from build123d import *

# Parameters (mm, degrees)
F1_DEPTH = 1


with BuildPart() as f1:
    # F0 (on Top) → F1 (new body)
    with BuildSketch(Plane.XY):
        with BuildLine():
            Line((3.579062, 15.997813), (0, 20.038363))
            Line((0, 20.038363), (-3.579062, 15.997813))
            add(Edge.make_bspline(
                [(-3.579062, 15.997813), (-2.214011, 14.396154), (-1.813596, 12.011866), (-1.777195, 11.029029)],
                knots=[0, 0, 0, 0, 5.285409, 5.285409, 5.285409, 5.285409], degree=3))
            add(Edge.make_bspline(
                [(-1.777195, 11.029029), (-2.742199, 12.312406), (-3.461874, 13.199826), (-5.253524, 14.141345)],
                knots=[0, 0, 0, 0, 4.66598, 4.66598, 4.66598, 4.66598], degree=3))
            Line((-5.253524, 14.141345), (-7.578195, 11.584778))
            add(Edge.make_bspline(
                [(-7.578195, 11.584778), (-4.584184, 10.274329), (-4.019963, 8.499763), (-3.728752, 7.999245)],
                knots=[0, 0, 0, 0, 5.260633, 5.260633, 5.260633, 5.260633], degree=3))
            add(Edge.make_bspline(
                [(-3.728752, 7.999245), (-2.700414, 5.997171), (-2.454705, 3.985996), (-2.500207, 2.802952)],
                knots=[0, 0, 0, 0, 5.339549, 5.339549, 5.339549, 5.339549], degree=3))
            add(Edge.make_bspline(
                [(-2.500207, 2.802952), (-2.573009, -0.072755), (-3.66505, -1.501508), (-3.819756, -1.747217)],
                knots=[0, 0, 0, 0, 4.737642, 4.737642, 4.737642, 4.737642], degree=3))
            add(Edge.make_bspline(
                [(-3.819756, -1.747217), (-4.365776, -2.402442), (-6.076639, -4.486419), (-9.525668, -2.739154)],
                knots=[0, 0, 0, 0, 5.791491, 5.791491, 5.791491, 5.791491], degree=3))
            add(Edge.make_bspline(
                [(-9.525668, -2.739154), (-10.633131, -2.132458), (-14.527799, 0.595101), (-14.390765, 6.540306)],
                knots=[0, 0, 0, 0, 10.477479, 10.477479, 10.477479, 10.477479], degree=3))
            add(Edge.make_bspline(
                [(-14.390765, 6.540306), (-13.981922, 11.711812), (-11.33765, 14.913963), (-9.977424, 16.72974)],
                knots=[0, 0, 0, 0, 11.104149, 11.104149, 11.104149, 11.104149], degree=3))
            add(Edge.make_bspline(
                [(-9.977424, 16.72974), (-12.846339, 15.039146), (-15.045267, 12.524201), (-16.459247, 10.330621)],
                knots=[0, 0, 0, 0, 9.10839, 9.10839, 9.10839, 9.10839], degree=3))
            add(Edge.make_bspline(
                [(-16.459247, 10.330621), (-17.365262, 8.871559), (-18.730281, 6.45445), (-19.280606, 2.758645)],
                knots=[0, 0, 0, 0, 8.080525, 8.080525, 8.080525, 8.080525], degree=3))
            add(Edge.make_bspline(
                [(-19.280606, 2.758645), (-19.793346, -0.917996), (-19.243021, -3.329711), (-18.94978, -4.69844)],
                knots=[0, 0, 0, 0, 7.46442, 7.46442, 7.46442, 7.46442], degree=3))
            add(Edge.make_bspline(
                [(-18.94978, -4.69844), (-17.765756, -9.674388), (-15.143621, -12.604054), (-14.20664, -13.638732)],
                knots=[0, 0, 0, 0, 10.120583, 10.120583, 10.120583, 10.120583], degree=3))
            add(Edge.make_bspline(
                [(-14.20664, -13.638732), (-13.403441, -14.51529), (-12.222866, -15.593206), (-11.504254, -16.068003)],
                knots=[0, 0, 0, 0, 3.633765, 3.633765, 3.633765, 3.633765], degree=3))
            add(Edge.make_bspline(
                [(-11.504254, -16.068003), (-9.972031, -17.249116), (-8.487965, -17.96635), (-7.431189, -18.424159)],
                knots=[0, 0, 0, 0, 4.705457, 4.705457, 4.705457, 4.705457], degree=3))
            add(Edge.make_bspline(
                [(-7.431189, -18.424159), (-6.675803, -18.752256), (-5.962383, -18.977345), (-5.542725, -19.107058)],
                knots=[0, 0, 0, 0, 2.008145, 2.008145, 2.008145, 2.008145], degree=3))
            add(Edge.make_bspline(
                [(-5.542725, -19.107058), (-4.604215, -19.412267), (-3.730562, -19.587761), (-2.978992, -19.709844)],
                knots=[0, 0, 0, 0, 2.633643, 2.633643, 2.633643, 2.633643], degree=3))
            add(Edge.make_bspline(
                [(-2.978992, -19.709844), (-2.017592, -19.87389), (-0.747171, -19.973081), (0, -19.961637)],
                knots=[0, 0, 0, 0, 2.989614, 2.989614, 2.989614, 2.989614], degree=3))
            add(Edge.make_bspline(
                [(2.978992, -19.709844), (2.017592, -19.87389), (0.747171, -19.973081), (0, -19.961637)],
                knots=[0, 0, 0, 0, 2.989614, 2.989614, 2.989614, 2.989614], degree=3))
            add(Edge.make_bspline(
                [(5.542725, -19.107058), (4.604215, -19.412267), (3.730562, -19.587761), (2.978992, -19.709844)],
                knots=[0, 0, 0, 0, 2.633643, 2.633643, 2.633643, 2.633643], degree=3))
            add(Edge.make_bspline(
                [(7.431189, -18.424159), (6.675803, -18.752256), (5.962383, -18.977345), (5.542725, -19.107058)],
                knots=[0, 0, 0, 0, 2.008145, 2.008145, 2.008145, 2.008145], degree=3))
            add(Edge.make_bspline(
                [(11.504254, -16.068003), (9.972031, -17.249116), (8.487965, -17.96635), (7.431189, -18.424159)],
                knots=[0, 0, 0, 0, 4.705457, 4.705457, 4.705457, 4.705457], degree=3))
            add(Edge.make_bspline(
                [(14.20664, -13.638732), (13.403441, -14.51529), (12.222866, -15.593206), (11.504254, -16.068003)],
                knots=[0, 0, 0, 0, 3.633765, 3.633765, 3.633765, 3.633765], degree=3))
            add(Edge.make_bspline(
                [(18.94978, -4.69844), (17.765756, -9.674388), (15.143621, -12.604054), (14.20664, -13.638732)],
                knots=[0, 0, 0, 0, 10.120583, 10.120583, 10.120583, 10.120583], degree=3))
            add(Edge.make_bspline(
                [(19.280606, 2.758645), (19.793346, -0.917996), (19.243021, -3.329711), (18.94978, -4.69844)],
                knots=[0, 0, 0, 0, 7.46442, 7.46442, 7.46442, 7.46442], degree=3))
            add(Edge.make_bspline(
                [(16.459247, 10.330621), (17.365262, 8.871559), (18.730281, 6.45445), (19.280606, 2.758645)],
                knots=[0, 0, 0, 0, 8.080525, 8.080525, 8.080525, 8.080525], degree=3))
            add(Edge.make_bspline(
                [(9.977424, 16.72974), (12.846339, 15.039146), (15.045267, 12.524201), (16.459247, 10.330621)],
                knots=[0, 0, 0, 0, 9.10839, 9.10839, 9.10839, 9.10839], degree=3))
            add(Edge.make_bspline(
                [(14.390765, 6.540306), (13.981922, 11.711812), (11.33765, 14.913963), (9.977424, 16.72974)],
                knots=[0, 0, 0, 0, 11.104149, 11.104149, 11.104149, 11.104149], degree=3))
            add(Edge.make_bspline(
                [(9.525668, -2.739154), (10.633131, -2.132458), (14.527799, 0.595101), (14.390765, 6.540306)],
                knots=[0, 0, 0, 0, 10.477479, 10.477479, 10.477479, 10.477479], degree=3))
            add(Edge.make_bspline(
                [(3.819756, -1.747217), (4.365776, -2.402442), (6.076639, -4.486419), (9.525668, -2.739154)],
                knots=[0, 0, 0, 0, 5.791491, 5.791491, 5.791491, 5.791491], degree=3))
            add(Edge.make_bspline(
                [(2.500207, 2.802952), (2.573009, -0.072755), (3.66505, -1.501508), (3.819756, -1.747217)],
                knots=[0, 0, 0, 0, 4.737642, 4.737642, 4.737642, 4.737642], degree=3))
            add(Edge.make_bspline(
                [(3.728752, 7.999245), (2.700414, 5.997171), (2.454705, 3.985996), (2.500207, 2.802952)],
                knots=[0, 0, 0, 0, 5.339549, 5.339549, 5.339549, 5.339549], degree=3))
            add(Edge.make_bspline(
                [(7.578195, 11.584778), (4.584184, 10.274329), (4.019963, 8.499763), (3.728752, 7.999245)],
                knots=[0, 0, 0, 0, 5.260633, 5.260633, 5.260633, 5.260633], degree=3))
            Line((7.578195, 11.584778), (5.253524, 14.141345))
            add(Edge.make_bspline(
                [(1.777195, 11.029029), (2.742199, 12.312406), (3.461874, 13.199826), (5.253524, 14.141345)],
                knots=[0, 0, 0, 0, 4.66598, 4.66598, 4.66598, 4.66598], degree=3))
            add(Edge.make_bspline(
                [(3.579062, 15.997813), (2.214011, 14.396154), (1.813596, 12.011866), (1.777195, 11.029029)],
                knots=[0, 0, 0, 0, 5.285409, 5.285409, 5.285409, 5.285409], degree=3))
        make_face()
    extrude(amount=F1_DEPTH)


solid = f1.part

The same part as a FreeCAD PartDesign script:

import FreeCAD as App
import Part
import Sketcher
from FreeCAD import Vector

doc = App.newDocument("Part")
params = doc.addObject("Spreadsheet::Sheet", "Params")
for row, (alias, value) in enumerate([
    ("pad1_length", "1 mm"),
], start=1):
    params.set(f"A{row}", alias)
    params.set(f"B{row}", "=" + value)
    params.setAlias(f"B{row}", alias)

body = doc.addObject("PartDesign::Body", "Body")

# Sketch on XY plane
sketch1 = doc.addObject("Sketcher::SketchObject", "Sketch")
body.addObject(sketch1)
sketch1.AttachmentSupport = (doc.XY_Plane, [""])
sketch1.MapMode = "FlatFace"
sketch1.addGeometry(Part.LineSegment(Vector(3.579062, 15.997813, 0), Vector(0, 20.038363, 0)), False)
sketch1.addGeometry(Part.LineSegment(Vector(0, 20.038363, 0), Vector(-3.579062, 15.997813, 0)), False)
sketch1.addGeometry(Part.BSplineCurve([Vector(-3.579062, 15.997813, 0), Vector(-2.214011, 14.396154, 0), Vector(-1.813596, 12.011866, 0), Vector(-1.777195, 11.029029, 0)], [4, 4], [0, 5.285409], False, 3, [1, 1, 1, 1], False), False)
sketch1.addGeometry(Part.BSplineCurve([Vector(-1.777195, 11.029029, 0), Vector(-2.742199, 12.312406, 0), Vector(-3.461874, 13.199826, 0), Vector(-5.253524, 14.141345, 0)], [4, 4], [0, 4.66598], False, 3, [1, 1, 1, 1], False), False)
sketch1.addGeometry(Part.LineSegment(Vector(-5.253524, 14.141345, 0), Vector(-7.578195, 11.584778, 0)), False)
sketch1.addGeometry(Part.BSplineCurve([Vector(-7.578195, 11.584778, 0), Vector(-4.584184, 10.274329, 0), Vector(-4.019963, 8.499763, 0), Vector(-3.728752, 7.999245, 0)], [4, 4], [0, 5.260633], False, 3, [1, 1, 1, 1], False), False)
sketch1.addGeometry(Part.BSplineCurve([Vector(-3.728752, 7.999245, 0), Vector(-2.700414, 5.997171, 0), Vector(-2.454705, 3.985996, 0), Vector(-2.500207, 2.802952, 0)], [4, 4], [0, 5.339549], False, 3, [1, 1, 1, 1], False), False)
sketch1.addGeometry(Part.BSplineCurve([Vector(-2.500207, 2.802952, 0), Vector(-2.573009, -0.072755, 0), Vector(-3.66505, -1.501508, 0), Vector(-3.819756, -1.747217, 0)], [4, 4], [0, 4.737642], False, 3, [1, 1, 1, 1], False), False)
sketch1.addGeometry(Part.BSplineCurve([Vector(-3.819756, -1.747217, 0), Vector(-4.365776, -2.402442, 0), Vector(-6.076639, -4.486419, 0), Vector(-9.525668, -2.739154, 0)], [4, 4], [0, 5.791491], False, 3, [1, 1, 1, 1], False), False)
sketch1.addGeometry(Part.BSplineCurve([Vector(-9.525668, -2.739154, 0), Vector(-10.633131, -2.132458, 0), Vector(-14.527799, 0.595101, 0), Vector(-14.390765, 6.540306, 0)], [4, 4], [0, 10.477479], False, 3, [1, 1, 1, 1], False), False)
sketch1.addGeometry(Part.BSplineCurve([Vector(-14.390765, 6.540306, 0), Vector(-13.981922, 11.711812, 0), Vector(-11.33765, 14.913963, 0), Vector(-9.977424, 16.72974, 0)], [4, 4], [0, 11.104149], False, 3, [1, 1, 1, 1], False), False)
sketch1.addGeometry(Part.BSplineCurve([Vector(-9.977424, 16.72974, 0), Vector(-12.846339, 15.039146, 0), Vector(-15.045267, 12.524201, 0), Vector(-16.459247, 10.330621, 0)], [4, 4], [0, 9.10839], False, 3, [1, 1, 1, 1], False), False)
sketch1.addGeometry(Part.BSplineCurve([Vector(-16.459247, 10.330621, 0), Vector(-17.365262, 8.871559, 0), Vector(-18.730281, 6.45445, 0), Vector(-19.280606, 2.758645, 0)], [4, 4], [0, 8.080525], False, 3, [1, 1, 1, 1], False), False)
sketch1.addGeometry(Part.BSplineCurve([Vector(-19.280606, 2.758645, 0), Vector(-19.793346, -0.917996, 0), Vector(-19.243021, -3.329711, 0), Vector(-18.94978, -4.69844, 0)], [4, 4], [0, 7.46442], False, 3, [1, 1, 1, 1], False), False)
sketch1.addGeometry(Part.BSplineCurve([Vector(-18.94978, -4.69844, 0), Vector(-17.765756, -9.674388, 0), Vector(-15.143621, -12.604054, 0), Vector(-14.20664, -13.638732, 0)], [4, 4], [0, 10.120583], False, 3, [1, 1, 1, 1], False), False)
sketch1.addGeometry(Part.BSplineCurve([Vector(-14.20664, -13.638732, 0), Vector(-13.403441, -14.51529, 0), Vector(-12.222866, -15.593206, 0), Vector(-11.504254, -16.068003, 0)], [4, 4], [0, 3.633765], False, 3, [1, 1, 1, 1], False), False)
sketch1.addGeometry(Part.BSplineCurve([Vector(-11.504254, -16.068003, 0), Vector(-9.972031, -17.249116, 0), Vector(-8.487965, -17.96635, 0), Vector(-7.431189, -18.424159, 0)], [4, 4], [0, 4.705457], False, 3, [1, 1, 1, 1], False), False)
sketch1.addGeometry(Part.BSplineCurve([Vector(-7.431189, -18.424159, 0), Vector(-6.675803, -18.752256, 0), Vector(-5.962383, -18.977345, 0), Vector(-5.542725, -19.107058, 0)], [4, 4], [0, 2.008145], False, 3, [1, 1, 1, 1], False), False)
sketch1.addGeometry(Part.BSplineCurve([Vector(-5.542725, -19.107058, 0), Vector(-4.604215, -19.412267, 0), Vector(-3.730562, -19.587761, 0), Vector(-2.978992, -19.709844, 0)], [4, 4], [0, 2.633643], False, 3, [1, 1, 1, 1], False), False)
sketch1.addGeometry(Part.BSplineCurve([Vector(-2.978992, -19.709844, 0), Vector(-2.017592, -19.87389, 0), Vector(-0.747171, -19.973081, 0), Vector(0, -19.961637, 0)], [4, 4], [0, 2.989614], False, 3, [1, 1, 1, 1], False), False)
sketch1.addGeometry(Part.BSplineCurve([Vector(2.978992, -19.709844, 0), Vector(2.017592, -19.87389, 0), Vector(0.747171, -19.973081, 0), Vector(0, -19.961637, 0)], [4, 4], [0, 2.989614], False, 3, [1, 1, 1, 1], False), False)
sketch1.addGeometry(Part.BSplineCurve([Vector(5.542725, -19.107058, 0), Vector(4.604215, -19.412267, 0), Vector(3.730562, -19.587761, 0), Vector(2.978992, -19.709844, 0)], [4, 4], [0, 2.633643], False, 3, [1, 1, 1, 1], False), False)
sketch1.addGeometry(Part.BSplineCurve([Vector(7.431189, -18.424159, 0), Vector(6.675803, -18.752256, 0), Vector(5.962383, -18.977345, 0), Vector(5.542725, -19.107058, 0)], [4, 4], [0, 2.008145], False, 3, [1, 1, 1, 1], False), False)
sketch1.addGeometry(Part.BSplineCurve([Vector(11.504254, -16.068003, 0), Vector(9.972031, -17.249116, 0), Vector(8.487965, -17.96635, 0), Vector(7.431189, -18.424159, 0)], [4, 4], [0, 4.705457], False, 3, [1, 1, 1, 1], False), False)
sketch1.addGeometry(Part.BSplineCurve([Vector(14.20664, -13.638732, 0), Vector(13.403441, -14.51529, 0), Vector(12.222866, -15.593206, 0), Vector(11.504254, -16.068003, 0)], [4, 4], [0, 3.633765], False, 3, [1, 1, 1, 1], False), False)
sketch1.addGeometry(Part.BSplineCurve([Vector(18.94978, -4.69844, 0), Vector(17.765756, -9.674388, 0), Vector(15.143621, -12.604054, 0), Vector(14.20664, -13.638732, 0)], [4, 4], [0, 10.120583], False, 3, [1, 1, 1, 1], False), False)
sketch1.addGeometry(Part.BSplineCurve([Vector(19.280606, 2.758645, 0), Vector(19.793346, -0.917996, 0), Vector(19.243021, -3.329711, 0), Vector(18.94978, -4.69844, 0)], [4, 4], [0, 7.46442], False, 3, [1, 1, 1, 1], False), False)
sketch1.addGeometry(Part.BSplineCurve([Vector(16.459247, 10.330621, 0), Vector(17.365262, 8.871559, 0), Vector(18.730281, 6.45445, 0), Vector(19.280606, 2.758645, 0)], [4, 4], [0, 8.080525], False, 3, [1, 1, 1, 1], False), False)
sketch1.addGeometry(Part.BSplineCurve([Vector(9.977424, 16.72974, 0), Vector(12.846339, 15.039146, 0), Vector(15.045267, 12.524201, 0), Vector(16.459247, 10.330621, 0)], [4, 4], [0, 9.10839], False, 3, [1, 1, 1, 1], False), False)
sketch1.addGeometry(Part.BSplineCurve([Vector(14.390765, 6.540306, 0), Vector(13.981922, 11.711812, 0), Vector(11.33765, 14.913963, 0), Vector(9.977424, 16.72974, 0)], [4, 4], [0, 11.104149], False, 3, [1, 1, 1, 1], False), False)
sketch1.addGeometry(Part.BSplineCurve([Vector(9.525668, -2.739154, 0), Vector(10.633131, -2.132458, 0), Vector(14.527799, 0.595101, 0), Vector(14.390765, 6.540306, 0)], [4, 4], [0, 10.477479], False, 3, [1, 1, 1, 1], False), False)
sketch1.addGeometry(Part.BSplineCurve([Vector(3.819756, -1.747217, 0), Vector(4.365776, -2.402442, 0), Vector(6.076639, -4.486419, 0), Vector(9.525668, -2.739154, 0)], [4, 4], [0, 5.791491], False, 3, [1, 1, 1, 1], False), False)
sketch1.addGeometry(Part.BSplineCurve([Vector(2.500207, 2.802952, 0), Vector(2.573009, -0.072755, 0), Vector(3.66505, -1.501508, 0), Vector(3.819756, -1.747217, 0)], [4, 4], [0, 4.737642], False, 3, [1, 1, 1, 1], False), False)
sketch1.addGeometry(Part.BSplineCurve([Vector(3.728752, 7.999245, 0), Vector(2.700414, 5.997171, 0), Vector(2.454705, 3.985996, 0), Vector(2.500207, 2.802952, 0)], [4, 4], [0, 5.339549], False, 3, [1, 1, 1, 1], False), False)
sketch1.addGeometry(Part.BSplineCurve([Vector(7.578195, 11.584778, 0), Vector(4.584184, 10.274329, 0), Vector(4.019963, 8.499763, 0), Vector(3.728752, 7.999245, 0)], [4, 4], [0, 5.260633], False, 3, [1, 1, 1, 1], False), False)
sketch1.addGeometry(Part.LineSegment(Vector(7.578195, 11.584778, 0), Vector(5.253524, 14.141345, 0)), False)
sketch1.addGeometry(Part.BSplineCurve([Vector(1.777195, 11.029029, 0), Vector(2.742199, 12.312406, 0), Vector(3.461874, 13.199826, 0), Vector(5.253524, 14.141345, 0)], [4, 4], [0, 4.66598], False, 3, [1, 1, 1, 1], False), False)
sketch1.addGeometry(Part.BSplineCurve([Vector(3.579062, 15.997813, 0), Vector(2.214011, 14.396154, 0), Vector(1.813596, 12.011866, 0), Vector(1.777195, 11.029029, 0)], [4, 4], [0, 5.285409], False, 3, [1, 1, 1, 1], False), False)
sketch1.addConstraint(Sketcher.Constraint("Block", 2))
sketch1.addConstraint(Sketcher.Constraint("Block", 3))
sketch1.addConstraint(Sketcher.Constraint("Block", 5))
sketch1.addConstraint(Sketcher.Constraint("Block", 6))
sketch1.addConstraint(Sketcher.Constraint("Block", 7))
sketch1.addConstraint(Sketcher.Constraint("Block", 8))
sketch1.addConstraint(Sketcher.Constraint("Block", 9))
sketch1.addConstraint(Sketcher.Constraint("Block", 10))
sketch1.addConstraint(Sketcher.Constraint("Block", 11))
sketch1.addConstraint(Sketcher.Constraint("Block", 12))
sketch1.addConstraint(Sketcher.Constraint("Block", 13))
sketch1.addConstraint(Sketcher.Constraint("Block", 14))
sketch1.addConstraint(Sketcher.Constraint("Block", 15))
sketch1.addConstraint(Sketcher.Constraint("Block", 16))
sketch1.addConstraint(Sketcher.Constraint("Block", 17))
sketch1.addConstraint(Sketcher.Constraint("Block", 18))
sketch1.addConstraint(Sketcher.Constraint("Block", 19))
sketch1.addConstraint(Sketcher.Constraint("Block", 20))
sketch1.addConstraint(Sketcher.Constraint("Block", 21))
sketch1.addConstraint(Sketcher.Constraint("Block", 22))
sketch1.addConstraint(Sketcher.Constraint("Block", 23))
sketch1.addConstraint(Sketcher.Constraint("Block", 24))
sketch1.addConstraint(Sketcher.Constraint("Block", 25))
sketch1.addConstraint(Sketcher.Constraint("Block", 26))
sketch1.addConstraint(Sketcher.Constraint("Block", 27))
sketch1.addConstraint(Sketcher.Constraint("Block", 28))
sketch1.addConstraint(Sketcher.Constraint("Block", 29))
sketch1.addConstraint(Sketcher.Constraint("Block", 30))
sketch1.addConstraint(Sketcher.Constraint("Block", 31))
sketch1.addConstraint(Sketcher.Constraint("Block", 32))
sketch1.addConstraint(Sketcher.Constraint("Block", 33))
sketch1.addConstraint(Sketcher.Constraint("Block", 34))
sketch1.addConstraint(Sketcher.Constraint("Block", 36))
sketch1.addConstraint(Sketcher.Constraint("Block", 37))
sketch1.addConstraint(Sketcher.Constraint("Coincident", 0, 2, 1, 1))
sketch1.addConstraint(Sketcher.Constraint("Coincident", 1, 2, 2, 1))
sketch1.addConstraint(Sketcher.Constraint("Coincident", 3, 2, 4, 1))
sketch1.addConstraint(Sketcher.Constraint("Coincident", 4, 2, 5, 1))
sketch1.addConstraint(Sketcher.Constraint("Coincident", 34, 1, 35, 1))
sketch1.addConstraint(Sketcher.Constraint("Coincident", 35, 2, 36, 2))
sketch1.addConstraint(Sketcher.Constraint("Coincident", 37, 1, 0, 1))
sketch1.addConstraint(Sketcher.Constraint("PointOnObject", 0, 2, -2))
sketch1.addConstraint(Sketcher.Constraint("DistanceY", 1, 2, 0, 2, 4.04055))
pad1 = doc.addObject("PartDesign::Pad", "Pad")
body.addObject(pad1)
pad1.Profile = sketch1
pad1.setExpression("Length", "Params.pad1_length")

doc.recompute()
